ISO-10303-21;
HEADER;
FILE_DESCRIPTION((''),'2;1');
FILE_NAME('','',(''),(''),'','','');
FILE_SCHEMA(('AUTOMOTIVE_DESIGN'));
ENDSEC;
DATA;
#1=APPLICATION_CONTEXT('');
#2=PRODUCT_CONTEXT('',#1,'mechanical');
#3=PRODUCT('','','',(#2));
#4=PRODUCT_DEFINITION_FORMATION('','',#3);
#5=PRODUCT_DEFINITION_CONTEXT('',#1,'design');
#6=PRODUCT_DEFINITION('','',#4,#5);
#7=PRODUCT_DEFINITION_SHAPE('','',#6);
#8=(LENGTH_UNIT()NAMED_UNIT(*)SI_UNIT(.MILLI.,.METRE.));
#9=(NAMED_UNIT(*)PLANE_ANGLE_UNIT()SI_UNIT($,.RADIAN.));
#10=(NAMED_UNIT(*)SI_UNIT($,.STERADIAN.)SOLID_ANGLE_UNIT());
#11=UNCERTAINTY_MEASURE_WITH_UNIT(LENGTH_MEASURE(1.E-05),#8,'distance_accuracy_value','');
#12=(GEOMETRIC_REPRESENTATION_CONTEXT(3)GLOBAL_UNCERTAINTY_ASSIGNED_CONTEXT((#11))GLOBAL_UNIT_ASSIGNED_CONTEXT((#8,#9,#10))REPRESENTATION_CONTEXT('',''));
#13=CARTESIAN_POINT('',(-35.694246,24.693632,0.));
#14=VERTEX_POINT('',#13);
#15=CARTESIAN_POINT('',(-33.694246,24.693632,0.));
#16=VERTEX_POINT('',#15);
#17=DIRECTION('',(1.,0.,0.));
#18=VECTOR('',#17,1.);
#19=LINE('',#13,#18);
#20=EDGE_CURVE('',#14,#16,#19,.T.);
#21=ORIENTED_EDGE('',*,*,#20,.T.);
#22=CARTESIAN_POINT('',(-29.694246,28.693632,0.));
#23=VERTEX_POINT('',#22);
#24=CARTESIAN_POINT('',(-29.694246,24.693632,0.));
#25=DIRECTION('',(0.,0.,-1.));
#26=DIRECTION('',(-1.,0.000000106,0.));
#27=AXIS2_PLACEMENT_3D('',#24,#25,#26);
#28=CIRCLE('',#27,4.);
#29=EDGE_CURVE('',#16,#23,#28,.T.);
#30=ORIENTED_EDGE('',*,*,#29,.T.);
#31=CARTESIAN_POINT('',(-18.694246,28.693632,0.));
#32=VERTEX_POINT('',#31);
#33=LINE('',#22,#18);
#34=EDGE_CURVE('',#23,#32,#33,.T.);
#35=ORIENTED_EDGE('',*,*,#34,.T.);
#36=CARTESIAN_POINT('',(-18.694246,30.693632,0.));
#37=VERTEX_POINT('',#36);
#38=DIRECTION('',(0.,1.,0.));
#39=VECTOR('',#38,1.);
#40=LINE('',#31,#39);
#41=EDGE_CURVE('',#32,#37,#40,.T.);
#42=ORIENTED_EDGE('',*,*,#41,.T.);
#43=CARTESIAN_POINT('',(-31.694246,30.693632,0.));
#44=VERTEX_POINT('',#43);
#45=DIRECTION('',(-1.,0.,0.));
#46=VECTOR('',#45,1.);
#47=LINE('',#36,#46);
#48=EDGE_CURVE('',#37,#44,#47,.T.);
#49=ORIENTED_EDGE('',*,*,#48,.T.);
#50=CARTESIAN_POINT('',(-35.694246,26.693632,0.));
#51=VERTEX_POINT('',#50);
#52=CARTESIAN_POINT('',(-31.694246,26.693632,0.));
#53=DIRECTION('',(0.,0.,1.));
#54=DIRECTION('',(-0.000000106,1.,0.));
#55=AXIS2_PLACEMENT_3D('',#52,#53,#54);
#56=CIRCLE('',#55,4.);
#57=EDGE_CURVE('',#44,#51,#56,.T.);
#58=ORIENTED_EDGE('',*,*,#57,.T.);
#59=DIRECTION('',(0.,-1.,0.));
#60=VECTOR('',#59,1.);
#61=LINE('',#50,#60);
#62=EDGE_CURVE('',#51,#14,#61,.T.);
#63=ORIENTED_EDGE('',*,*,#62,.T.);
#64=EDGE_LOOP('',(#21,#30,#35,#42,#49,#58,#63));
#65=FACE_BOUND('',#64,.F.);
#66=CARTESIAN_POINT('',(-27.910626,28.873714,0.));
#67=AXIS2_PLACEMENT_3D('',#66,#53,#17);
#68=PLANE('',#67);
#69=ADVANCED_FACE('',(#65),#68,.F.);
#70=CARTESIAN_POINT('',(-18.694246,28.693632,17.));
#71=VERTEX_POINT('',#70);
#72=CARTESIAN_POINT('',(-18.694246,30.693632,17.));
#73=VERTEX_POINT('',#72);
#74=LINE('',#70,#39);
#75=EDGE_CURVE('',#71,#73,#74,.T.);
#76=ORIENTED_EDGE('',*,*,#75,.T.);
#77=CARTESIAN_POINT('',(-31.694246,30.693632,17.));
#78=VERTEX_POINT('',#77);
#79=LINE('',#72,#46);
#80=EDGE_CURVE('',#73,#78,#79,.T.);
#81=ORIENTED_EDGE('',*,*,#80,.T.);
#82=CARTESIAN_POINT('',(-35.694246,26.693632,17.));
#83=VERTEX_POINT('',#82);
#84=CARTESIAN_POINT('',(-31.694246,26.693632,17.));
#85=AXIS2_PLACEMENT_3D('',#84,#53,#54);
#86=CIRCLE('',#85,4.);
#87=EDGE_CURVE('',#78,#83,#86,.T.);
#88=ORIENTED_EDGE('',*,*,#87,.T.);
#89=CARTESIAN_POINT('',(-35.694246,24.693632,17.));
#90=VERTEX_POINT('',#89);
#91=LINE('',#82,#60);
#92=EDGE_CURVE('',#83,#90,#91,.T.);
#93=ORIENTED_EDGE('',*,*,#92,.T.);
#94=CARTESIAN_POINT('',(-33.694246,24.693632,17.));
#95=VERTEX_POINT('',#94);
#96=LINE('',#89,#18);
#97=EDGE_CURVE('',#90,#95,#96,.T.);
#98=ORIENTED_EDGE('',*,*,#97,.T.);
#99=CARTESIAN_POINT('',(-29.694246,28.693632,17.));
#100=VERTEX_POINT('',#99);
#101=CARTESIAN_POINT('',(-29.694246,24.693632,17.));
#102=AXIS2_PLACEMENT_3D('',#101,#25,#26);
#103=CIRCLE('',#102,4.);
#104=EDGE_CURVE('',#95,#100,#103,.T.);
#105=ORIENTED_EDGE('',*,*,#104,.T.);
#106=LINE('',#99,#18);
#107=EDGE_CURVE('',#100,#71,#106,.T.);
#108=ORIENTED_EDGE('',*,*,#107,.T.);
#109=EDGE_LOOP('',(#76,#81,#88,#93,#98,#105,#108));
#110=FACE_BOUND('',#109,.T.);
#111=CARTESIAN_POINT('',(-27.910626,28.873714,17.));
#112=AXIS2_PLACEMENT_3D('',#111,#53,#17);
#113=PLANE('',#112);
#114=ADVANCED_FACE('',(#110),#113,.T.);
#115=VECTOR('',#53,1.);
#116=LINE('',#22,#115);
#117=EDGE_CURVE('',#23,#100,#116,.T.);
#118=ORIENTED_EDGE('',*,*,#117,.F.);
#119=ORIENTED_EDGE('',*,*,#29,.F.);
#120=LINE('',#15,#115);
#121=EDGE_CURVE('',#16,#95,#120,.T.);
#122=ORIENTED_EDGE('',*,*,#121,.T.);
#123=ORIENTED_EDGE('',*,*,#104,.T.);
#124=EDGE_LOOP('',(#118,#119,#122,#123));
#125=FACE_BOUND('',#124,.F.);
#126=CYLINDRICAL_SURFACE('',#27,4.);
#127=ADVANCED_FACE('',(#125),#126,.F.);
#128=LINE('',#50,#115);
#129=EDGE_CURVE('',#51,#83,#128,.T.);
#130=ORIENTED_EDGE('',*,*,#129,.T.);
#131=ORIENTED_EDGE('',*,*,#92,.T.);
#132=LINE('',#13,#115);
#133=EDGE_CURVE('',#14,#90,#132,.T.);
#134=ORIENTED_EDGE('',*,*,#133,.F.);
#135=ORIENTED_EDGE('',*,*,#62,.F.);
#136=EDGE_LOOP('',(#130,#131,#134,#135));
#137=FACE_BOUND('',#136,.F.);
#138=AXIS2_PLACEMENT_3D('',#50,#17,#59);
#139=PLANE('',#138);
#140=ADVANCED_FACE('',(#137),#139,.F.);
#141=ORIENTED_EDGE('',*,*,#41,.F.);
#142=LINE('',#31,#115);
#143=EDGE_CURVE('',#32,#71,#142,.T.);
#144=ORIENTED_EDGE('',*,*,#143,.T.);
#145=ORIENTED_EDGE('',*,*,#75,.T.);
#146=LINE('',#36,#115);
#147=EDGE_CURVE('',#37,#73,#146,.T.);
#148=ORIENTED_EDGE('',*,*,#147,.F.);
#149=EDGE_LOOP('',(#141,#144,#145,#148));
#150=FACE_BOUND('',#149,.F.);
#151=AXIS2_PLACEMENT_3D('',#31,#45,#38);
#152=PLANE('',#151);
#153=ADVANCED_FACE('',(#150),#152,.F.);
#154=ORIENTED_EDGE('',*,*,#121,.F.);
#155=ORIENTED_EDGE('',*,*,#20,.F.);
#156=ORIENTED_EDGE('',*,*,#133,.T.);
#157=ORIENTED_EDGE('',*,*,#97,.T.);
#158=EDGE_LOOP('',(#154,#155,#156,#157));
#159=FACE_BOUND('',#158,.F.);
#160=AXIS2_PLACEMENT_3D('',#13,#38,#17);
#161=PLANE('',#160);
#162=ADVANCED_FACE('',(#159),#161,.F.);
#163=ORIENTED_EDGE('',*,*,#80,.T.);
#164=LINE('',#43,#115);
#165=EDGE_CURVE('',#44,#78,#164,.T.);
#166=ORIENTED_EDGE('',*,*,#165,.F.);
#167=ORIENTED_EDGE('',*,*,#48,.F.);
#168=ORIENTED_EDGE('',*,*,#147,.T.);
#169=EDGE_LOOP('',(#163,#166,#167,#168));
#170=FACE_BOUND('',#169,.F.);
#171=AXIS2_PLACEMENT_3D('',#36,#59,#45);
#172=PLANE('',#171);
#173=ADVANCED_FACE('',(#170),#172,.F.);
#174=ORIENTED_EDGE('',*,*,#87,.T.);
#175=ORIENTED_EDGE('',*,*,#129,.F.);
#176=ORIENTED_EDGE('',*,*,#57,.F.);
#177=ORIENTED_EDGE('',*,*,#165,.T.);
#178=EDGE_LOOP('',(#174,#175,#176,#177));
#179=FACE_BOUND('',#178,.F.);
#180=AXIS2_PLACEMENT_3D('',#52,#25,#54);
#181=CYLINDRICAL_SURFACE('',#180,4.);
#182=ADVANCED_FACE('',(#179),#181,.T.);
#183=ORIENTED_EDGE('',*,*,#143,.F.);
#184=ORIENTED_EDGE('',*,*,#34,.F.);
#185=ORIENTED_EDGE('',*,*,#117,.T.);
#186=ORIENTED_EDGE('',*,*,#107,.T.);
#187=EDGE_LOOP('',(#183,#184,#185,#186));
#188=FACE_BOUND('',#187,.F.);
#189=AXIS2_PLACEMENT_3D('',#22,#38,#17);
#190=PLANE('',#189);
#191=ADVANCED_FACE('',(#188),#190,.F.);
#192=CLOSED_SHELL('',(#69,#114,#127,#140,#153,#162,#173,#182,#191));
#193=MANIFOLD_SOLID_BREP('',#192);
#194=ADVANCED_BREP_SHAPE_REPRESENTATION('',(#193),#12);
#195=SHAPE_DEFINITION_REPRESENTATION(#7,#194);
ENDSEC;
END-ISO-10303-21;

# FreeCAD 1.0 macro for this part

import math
import FreeCAD as App
import Part
import Sketcher

doc = App.newDocument("Part")
params = doc.addObject("Spreadsheet::Sheet", "Params")
for row, (alias, value) in enumerate([
    ("sketch1_radius", "4 mm"),
    ("sketch1_width", "13 mm"),
    ("sketch1_width2", "2 mm"),
    ("pad1_length", "17 mm"),
], start=1):
    params.set(f"A{row}", alias)
    params.set(f"B{row}", "=" + value)
    params.setAlias(f"B{row}", alias)

body = doc.addObject("PartDesign::Body", "Body")

# Sketch on XY plane
sketch1 = body.newObject("Sketcher::SketchObject", "Sketch")
sketch1.AttachmentSupport = (doc.getObject("XY_Plane"), [""])
sketch1.MapMode = "FlatFace"
sketch1.addGeometry([
    Part.LineSegment(App.Vector(-18.7, 28.7, 0), App.Vector(-18.7, 30.7, 0)),  # 0
    Part.LineSegment(App.Vector(-18.7, 30.7, 0), App.Vector(-31.7, 30.7, 0)),  # 1
    Part.ArcOfCircle(Part.Circle(App.Vector(-31.7, 26.7, 0), App.Vector(0, 0, 1), 4), math.radians(90), math.radians(180)),  # 2
    Part.LineSegment(App.Vector(-35.7, 26.7, 0), App.Vector(-35.7, 24.7, 0)),  # 3
    Part.LineSegment(App.Vector(-35.7, 24.7, 0), App.Vector(-33.7, 24.7, 0)),  # 4
    Part.ArcOfCircle(Part.Circle(App.Vector(-29.7, 24.7, 0), App.Vector(0, 0, 1), 4), math.radians(90), math.radians(180)),  # 5
    Part.LineSegment(App.Vector(-29.7, 28.7, 0), App.Vector(-18.7, 28.7, 0)),  # 6
], False)
sketch1.addConstraint([
    Sketcher.Constraint("Coincident", 0, 2, 1, 1),
    Sketcher.Constraint("Tangent", 1, 2, 2, 1),
    Sketcher.Constraint("Tangent", 2, 2, 3, 1),
    Sketcher.Constraint("Coincident", 3, 2, 4, 1),
    Sketcher.Constraint("Coincident", 4, 2, 5, 2),
    Sketcher.Constraint("Tangent", 5, 1, 6, 1),
    Sketcher.Constraint("Coincident", 6, 2, 0, 1),
    Sketcher.Constraint("Vertical", 0),
    Sketcher.Constraint("Horizontal", 1),
    Sketcher.Constraint("Vertical", 3),
    Sketcher.Constraint("Horizontal", 4),
    Sketcher.Constraint("Horizontal", 6),
    Sketcher.Constraint("Equal", 2, 5),
    Sketcher.Constraint("Horizontal", 5, 3, 3, 2),
    Sketcher.Constraint("Equal", 4, 0),
    Sketcher.Constraint("Radius", 2, 4.0),
    Sketcher.Constraint("DistanceX", 1, 2, 1, 1, 13.0),
    Sketcher.Constraint("DistanceX", 4, 1, 4, 2, 2.0),
    Sketcher.Constraint("DistanceY", -1, 1, 2, 3, 26.693632),
    Sketcher.Constraint("DistanceX", 2, 3, -1, 1, 31.694246),
])
sketch1.setExpression("Constraints[15]", "Params.sketch1_radius")
sketch1.setExpression("Constraints[16]", "Params.sketch1_width")
sketch1.setExpression("Constraints[17]", "Params.sketch1_width2")
pad1 = body.newObject("PartDesign::Pad", "Pad")
pad1.Profile = sketch1
pad1.setExpression("Length", "Params.pad1_length")

doc.recompute()
